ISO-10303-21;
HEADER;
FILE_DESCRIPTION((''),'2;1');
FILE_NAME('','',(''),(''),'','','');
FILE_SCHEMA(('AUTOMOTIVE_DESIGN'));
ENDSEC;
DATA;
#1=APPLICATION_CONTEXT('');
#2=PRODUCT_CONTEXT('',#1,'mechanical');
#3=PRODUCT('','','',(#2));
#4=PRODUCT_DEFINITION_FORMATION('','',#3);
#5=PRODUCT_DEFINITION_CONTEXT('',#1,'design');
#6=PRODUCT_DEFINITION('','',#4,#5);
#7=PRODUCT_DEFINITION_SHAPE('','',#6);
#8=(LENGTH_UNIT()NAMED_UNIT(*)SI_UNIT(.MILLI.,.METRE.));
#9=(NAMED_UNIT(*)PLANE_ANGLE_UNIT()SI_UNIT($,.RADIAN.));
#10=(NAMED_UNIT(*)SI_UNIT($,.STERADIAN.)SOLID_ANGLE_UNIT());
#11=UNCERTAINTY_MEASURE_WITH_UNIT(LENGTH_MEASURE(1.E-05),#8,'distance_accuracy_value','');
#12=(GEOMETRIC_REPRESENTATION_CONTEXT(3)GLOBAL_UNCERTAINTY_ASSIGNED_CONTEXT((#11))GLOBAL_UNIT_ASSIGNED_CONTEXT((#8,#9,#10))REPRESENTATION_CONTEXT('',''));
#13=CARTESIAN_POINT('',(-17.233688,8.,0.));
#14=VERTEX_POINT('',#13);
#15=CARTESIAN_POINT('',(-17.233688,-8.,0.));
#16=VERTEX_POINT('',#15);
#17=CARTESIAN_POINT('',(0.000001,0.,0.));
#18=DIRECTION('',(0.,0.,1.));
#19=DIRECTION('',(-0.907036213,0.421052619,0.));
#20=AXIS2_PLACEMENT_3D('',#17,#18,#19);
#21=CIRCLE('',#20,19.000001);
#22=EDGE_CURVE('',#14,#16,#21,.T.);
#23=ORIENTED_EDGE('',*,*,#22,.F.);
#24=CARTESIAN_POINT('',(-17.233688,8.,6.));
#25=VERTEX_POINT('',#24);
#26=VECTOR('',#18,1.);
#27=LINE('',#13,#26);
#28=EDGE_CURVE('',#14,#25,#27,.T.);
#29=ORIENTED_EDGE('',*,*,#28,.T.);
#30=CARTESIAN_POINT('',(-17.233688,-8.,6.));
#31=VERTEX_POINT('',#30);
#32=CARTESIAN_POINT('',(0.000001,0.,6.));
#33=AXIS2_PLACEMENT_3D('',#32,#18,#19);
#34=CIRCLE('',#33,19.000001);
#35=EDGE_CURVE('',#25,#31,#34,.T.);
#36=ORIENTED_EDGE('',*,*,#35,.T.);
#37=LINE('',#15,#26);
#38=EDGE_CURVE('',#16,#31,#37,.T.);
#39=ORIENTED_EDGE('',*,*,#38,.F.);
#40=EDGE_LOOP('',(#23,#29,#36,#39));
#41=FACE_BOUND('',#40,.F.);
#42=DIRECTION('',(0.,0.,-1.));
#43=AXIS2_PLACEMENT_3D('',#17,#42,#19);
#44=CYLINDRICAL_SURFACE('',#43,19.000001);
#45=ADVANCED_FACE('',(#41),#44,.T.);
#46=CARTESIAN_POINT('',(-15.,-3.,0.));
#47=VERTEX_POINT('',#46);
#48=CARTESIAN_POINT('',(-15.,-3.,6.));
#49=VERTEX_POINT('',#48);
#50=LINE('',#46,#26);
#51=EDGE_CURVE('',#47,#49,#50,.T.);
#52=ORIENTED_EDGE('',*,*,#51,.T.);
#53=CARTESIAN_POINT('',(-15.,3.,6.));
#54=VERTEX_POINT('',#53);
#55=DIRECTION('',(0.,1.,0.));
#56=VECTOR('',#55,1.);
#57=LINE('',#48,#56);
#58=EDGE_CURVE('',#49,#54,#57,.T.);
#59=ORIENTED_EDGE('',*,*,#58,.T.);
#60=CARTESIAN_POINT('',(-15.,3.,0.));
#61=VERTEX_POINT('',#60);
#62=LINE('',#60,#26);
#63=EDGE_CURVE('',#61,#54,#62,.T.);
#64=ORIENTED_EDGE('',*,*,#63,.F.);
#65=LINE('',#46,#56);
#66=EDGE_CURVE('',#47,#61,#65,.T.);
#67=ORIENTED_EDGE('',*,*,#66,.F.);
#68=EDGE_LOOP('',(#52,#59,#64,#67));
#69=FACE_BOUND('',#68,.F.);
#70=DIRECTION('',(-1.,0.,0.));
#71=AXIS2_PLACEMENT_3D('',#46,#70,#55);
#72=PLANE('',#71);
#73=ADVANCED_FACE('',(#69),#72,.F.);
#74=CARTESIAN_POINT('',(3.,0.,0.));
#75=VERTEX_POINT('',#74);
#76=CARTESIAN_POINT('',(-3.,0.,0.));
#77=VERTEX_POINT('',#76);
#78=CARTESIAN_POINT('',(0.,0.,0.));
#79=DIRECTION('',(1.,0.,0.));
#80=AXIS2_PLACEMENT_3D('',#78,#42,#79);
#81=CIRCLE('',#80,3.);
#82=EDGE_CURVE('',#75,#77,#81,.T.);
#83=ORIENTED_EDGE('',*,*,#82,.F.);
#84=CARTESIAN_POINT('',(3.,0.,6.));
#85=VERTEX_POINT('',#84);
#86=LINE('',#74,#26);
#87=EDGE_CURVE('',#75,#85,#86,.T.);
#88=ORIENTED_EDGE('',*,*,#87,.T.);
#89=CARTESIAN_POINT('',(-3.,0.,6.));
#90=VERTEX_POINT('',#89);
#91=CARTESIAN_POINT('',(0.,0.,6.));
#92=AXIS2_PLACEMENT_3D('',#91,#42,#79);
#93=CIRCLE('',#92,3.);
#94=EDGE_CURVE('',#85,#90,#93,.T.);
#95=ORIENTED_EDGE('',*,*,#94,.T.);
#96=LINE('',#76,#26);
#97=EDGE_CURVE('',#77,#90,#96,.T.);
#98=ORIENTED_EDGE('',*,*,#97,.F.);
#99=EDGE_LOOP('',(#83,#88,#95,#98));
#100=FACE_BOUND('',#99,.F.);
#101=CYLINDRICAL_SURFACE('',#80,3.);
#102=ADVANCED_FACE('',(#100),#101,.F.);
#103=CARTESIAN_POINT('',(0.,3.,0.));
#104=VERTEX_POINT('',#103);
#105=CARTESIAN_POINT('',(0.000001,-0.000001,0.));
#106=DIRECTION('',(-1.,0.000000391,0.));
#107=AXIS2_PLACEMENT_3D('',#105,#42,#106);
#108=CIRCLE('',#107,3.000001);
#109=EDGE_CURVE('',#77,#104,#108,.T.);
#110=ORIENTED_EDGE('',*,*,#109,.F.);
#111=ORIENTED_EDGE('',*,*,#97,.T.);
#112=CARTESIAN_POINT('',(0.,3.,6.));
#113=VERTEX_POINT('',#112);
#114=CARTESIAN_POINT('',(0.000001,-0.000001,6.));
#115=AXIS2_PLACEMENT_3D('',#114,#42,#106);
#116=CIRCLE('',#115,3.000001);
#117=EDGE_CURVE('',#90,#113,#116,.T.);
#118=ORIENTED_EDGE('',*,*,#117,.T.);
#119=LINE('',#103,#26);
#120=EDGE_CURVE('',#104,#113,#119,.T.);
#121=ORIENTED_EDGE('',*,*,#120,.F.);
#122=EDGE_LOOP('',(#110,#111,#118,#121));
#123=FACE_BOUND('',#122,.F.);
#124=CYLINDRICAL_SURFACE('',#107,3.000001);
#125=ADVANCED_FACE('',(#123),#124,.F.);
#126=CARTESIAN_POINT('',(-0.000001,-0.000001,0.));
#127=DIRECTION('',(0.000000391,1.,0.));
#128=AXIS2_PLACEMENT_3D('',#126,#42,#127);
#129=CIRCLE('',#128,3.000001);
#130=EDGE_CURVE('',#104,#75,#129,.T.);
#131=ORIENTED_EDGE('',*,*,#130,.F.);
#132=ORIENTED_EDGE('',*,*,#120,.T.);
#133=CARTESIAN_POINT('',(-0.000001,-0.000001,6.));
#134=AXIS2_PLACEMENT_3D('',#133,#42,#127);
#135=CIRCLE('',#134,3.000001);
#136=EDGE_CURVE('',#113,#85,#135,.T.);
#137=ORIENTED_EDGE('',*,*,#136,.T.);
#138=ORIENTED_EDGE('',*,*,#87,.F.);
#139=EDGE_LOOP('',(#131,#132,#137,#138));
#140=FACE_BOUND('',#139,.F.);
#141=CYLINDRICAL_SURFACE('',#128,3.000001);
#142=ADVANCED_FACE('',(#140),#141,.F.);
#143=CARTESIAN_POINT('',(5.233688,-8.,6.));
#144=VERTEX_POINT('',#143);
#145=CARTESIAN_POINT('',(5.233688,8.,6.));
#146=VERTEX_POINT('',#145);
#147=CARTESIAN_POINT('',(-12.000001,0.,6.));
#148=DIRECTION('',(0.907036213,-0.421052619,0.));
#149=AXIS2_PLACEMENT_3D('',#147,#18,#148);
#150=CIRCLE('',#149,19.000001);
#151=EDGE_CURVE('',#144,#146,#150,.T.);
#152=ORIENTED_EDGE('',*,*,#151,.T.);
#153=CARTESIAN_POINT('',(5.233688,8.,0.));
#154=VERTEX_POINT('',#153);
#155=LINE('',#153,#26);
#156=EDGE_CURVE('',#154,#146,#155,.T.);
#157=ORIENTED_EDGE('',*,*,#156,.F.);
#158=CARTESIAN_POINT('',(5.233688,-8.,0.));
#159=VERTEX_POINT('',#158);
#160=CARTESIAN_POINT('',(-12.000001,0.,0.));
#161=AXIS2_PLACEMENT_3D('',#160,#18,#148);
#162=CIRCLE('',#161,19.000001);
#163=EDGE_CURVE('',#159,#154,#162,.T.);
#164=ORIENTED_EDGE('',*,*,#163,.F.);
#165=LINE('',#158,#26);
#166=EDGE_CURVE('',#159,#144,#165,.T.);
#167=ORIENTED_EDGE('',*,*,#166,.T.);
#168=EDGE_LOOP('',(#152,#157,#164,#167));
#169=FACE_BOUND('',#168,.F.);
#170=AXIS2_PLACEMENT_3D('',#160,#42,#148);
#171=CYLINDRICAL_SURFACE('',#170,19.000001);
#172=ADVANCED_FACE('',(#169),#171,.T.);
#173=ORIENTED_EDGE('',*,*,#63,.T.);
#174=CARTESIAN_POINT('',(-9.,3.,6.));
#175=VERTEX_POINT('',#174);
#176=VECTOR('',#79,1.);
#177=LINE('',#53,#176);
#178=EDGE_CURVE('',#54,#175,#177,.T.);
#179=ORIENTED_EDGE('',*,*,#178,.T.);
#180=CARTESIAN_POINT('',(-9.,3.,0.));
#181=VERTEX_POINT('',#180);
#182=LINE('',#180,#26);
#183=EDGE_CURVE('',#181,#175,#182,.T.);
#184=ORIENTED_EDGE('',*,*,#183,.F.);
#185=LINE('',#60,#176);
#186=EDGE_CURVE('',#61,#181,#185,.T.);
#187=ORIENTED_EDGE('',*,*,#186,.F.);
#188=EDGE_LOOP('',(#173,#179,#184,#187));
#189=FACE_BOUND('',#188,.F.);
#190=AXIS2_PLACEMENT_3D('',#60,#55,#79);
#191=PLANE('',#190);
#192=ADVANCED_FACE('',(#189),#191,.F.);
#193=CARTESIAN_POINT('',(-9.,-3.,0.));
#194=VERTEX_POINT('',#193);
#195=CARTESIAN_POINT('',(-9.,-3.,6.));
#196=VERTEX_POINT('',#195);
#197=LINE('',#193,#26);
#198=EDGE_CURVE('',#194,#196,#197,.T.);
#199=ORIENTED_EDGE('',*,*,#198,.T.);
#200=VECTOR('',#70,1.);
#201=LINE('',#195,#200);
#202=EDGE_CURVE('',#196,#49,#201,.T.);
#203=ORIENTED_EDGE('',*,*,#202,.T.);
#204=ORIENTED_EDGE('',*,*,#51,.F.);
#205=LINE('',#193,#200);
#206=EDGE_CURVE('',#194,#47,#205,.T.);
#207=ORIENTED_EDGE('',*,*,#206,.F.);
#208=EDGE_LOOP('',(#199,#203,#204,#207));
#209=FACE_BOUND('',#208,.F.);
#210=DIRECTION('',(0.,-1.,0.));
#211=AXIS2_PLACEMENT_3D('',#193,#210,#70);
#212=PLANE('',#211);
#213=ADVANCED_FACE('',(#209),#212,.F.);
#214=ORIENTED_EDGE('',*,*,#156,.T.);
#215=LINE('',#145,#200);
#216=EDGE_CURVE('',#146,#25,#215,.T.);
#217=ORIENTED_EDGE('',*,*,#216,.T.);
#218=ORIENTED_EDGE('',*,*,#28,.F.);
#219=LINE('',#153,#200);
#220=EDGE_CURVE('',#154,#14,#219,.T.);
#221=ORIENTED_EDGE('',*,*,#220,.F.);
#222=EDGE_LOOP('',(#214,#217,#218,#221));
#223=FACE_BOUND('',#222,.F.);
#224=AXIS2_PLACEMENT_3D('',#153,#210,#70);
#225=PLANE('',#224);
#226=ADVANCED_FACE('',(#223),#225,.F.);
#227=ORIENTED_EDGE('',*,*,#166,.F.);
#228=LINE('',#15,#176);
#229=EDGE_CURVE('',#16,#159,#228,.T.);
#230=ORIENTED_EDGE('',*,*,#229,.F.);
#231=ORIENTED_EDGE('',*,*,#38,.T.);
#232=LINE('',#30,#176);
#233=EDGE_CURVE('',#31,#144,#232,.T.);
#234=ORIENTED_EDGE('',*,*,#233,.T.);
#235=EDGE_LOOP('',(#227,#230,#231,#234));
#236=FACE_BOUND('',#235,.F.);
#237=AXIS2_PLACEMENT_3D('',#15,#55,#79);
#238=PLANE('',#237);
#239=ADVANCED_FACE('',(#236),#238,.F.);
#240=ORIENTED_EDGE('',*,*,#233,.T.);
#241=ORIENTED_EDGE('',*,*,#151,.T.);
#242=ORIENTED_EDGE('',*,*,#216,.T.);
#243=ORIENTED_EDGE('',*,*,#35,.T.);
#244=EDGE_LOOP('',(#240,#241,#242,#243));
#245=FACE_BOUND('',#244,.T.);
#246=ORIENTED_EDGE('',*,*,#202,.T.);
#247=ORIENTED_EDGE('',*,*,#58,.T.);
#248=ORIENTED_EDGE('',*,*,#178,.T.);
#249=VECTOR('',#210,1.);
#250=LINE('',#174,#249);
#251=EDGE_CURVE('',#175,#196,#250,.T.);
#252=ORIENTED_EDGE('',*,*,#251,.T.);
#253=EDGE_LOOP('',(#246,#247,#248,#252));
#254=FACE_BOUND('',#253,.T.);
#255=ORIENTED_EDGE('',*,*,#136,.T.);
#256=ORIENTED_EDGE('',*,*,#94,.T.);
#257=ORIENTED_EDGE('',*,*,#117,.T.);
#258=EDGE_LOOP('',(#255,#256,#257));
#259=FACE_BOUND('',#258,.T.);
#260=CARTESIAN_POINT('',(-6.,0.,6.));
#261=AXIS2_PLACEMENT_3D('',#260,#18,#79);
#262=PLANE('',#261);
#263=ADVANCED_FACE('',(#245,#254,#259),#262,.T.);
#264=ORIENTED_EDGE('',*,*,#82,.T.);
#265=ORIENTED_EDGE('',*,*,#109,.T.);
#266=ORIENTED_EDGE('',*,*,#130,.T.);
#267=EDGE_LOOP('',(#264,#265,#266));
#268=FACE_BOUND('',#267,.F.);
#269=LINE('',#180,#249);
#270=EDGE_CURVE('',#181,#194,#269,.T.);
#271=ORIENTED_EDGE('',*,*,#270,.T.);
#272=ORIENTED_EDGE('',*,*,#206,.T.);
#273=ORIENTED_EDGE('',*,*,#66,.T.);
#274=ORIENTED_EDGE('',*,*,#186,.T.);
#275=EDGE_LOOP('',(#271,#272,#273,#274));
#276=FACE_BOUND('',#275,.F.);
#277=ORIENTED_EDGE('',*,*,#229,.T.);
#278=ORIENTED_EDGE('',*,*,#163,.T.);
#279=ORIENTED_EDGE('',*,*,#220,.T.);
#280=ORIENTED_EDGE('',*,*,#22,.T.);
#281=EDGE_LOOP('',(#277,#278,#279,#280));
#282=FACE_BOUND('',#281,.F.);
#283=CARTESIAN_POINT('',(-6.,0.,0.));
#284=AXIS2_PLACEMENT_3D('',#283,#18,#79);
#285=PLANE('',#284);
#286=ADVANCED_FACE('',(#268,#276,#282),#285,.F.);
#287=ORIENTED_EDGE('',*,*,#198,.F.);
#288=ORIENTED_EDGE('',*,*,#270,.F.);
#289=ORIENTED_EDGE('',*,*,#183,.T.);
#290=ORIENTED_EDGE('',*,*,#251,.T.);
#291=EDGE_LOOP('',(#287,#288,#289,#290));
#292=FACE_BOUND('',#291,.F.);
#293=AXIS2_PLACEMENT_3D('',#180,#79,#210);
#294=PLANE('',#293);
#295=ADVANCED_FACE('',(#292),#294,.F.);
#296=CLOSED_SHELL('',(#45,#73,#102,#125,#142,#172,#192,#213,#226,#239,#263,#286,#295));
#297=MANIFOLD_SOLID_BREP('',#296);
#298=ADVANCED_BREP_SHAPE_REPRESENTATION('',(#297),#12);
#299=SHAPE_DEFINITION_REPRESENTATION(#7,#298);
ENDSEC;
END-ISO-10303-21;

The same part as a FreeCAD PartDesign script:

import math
import FreeCAD as App
import Part
import Sketcher

V = App.Vector

doc = App.newDocument("Part")
body = doc.addObject("PartDesign::Body", "Body")

sketch1 = body.newObject("Sketcher::SketchObject", "Sketch")
sketch1.AttachmentSupport = (doc.getObject("XY_Plane"), [""])
sketch1.MapMode = "FlatFace"
sketch1.addGeometry([
    Part.LineSegment(V(5.2, 8, 0), V(-17.2, 8, 0)),
    Part.ArcOfCircle(Part.Circle(V(0, 0, 0), V(0, 0, 1), 19), math.radians(155), math.radians(205)),
    Part.LineSegment(V(-17.2, -8, 0), V(5.2, -8, 0)),
    Part.ArcOfCircle(Part.Circle(V(-12, 0, 0), V(0, 0, 1), 19), math.radians(-25), math.radians(25)),
    Part.LineSegment(V(-15, 3, 0), V(-9, 3, 0)),
    Part.LineSegment(V(-9, 3, 0), V(-9, -3, 0)),
    Part.LineSegment(V(-9, -3, 0), V(-15, -3, 0)),
    Part.LineSegment(V(-15, -3, 0), V(-15, 3, 0)),
    Part.ArcOfCircle(Part.Circle(V(0, 0, 0), V(0, 0, 1), 3), math.radians(90), math.radians(180)),
    Part.ArcOfCircle(Part.Circle(V(0, 0, 0), V(0, 0, 1), 3), math.radians(0), math.radians(90)),
    Part.ArcOfCircle(Part.Circle(V(0, 0, 0), V(0, 0, 1), 3), math.radians(180), math.radians(360)),
], False)
sketch1.addConstraint([
    Sketcher.Constraint("Coincident", 0, 2, 1, 1),
    Sketcher.Constraint("Coincident", 1, 2, 2, 1),
    Sketcher.Constraint("Coincident", 2, 2, 3, 1),
    Sketcher.Constraint("Coincident", 3, 2, 0, 1),
    Sketcher.Constraint("Coincident", 4, 2, 5, 1),
    Sketcher.Constraint("Coincident", 5, 2, 6, 1),
    Sketcher.Constraint("Coincident", 6, 2, 7, 1),
    Sketcher.Constraint("Coincident", 7, 2, 4, 1),
    Sketcher.Constraint("Tangent", 8, 1, 9, 2),
    Sketcher.Constraint("Tangent", 9, 1, 10, 2),
    Sketcher.Constraint("Tangent", 10, 1, 8, 2),
    Sketcher.Constraint("Horizontal", 0),
    Sketcher.Constraint("Horizontal", 2),
    Sketcher.Constraint("Horizontal", 4),
    Sketcher.Constraint("Vertical", 5),
    Sketcher.Constraint("Horizontal", 6),
    Sketcher.Constraint("Vertical", 7),
    Sketcher.Constraint("Coincident", 1, 3, -1, 1),
    Sketcher.Constraint("Coincident", 8, 3, -1, 1),
    Sketcher.Constraint("Equal", 1, 3),
    Sketcher.Constraint("Symmetric", 2, 2, 3, 2, -1),
    Sketcher.Constraint("PointOnObject", 8, 1, -2),
    Sketcher.Constraint("PointOnObject", 9, 1, -1),
    Sketcher.Constraint("PointOnObject", 10, 1, -1),
    Sketcher.Constraint("Horizontal", 7, 2, 8, 1),
    Sketcher.Constraint("Equal", 6, 5),
    Sketcher.Constraint("Radius", 1, 19.000001),
    Sketcher.Constraint("Radius", 8, 3.000001),
    Sketcher.Constraint("DistanceX", 4, 1, 4, 2, 6.0),
    Sketcher.Constraint("DistanceX", 3, 3, -1, 1, 12.000001),
    Sketcher.Constraint("DistanceY", -1, 1, 0, 2, 8.0),
    Sketcher.Constraint("DistanceX", 4, 2, -1, 1, 9.0),
])
pad1 = body.newObject("PartDesign::Pad", "Pad")
pad1.Profile = sketch1
pad1.Length = 6

doc.recompute()
